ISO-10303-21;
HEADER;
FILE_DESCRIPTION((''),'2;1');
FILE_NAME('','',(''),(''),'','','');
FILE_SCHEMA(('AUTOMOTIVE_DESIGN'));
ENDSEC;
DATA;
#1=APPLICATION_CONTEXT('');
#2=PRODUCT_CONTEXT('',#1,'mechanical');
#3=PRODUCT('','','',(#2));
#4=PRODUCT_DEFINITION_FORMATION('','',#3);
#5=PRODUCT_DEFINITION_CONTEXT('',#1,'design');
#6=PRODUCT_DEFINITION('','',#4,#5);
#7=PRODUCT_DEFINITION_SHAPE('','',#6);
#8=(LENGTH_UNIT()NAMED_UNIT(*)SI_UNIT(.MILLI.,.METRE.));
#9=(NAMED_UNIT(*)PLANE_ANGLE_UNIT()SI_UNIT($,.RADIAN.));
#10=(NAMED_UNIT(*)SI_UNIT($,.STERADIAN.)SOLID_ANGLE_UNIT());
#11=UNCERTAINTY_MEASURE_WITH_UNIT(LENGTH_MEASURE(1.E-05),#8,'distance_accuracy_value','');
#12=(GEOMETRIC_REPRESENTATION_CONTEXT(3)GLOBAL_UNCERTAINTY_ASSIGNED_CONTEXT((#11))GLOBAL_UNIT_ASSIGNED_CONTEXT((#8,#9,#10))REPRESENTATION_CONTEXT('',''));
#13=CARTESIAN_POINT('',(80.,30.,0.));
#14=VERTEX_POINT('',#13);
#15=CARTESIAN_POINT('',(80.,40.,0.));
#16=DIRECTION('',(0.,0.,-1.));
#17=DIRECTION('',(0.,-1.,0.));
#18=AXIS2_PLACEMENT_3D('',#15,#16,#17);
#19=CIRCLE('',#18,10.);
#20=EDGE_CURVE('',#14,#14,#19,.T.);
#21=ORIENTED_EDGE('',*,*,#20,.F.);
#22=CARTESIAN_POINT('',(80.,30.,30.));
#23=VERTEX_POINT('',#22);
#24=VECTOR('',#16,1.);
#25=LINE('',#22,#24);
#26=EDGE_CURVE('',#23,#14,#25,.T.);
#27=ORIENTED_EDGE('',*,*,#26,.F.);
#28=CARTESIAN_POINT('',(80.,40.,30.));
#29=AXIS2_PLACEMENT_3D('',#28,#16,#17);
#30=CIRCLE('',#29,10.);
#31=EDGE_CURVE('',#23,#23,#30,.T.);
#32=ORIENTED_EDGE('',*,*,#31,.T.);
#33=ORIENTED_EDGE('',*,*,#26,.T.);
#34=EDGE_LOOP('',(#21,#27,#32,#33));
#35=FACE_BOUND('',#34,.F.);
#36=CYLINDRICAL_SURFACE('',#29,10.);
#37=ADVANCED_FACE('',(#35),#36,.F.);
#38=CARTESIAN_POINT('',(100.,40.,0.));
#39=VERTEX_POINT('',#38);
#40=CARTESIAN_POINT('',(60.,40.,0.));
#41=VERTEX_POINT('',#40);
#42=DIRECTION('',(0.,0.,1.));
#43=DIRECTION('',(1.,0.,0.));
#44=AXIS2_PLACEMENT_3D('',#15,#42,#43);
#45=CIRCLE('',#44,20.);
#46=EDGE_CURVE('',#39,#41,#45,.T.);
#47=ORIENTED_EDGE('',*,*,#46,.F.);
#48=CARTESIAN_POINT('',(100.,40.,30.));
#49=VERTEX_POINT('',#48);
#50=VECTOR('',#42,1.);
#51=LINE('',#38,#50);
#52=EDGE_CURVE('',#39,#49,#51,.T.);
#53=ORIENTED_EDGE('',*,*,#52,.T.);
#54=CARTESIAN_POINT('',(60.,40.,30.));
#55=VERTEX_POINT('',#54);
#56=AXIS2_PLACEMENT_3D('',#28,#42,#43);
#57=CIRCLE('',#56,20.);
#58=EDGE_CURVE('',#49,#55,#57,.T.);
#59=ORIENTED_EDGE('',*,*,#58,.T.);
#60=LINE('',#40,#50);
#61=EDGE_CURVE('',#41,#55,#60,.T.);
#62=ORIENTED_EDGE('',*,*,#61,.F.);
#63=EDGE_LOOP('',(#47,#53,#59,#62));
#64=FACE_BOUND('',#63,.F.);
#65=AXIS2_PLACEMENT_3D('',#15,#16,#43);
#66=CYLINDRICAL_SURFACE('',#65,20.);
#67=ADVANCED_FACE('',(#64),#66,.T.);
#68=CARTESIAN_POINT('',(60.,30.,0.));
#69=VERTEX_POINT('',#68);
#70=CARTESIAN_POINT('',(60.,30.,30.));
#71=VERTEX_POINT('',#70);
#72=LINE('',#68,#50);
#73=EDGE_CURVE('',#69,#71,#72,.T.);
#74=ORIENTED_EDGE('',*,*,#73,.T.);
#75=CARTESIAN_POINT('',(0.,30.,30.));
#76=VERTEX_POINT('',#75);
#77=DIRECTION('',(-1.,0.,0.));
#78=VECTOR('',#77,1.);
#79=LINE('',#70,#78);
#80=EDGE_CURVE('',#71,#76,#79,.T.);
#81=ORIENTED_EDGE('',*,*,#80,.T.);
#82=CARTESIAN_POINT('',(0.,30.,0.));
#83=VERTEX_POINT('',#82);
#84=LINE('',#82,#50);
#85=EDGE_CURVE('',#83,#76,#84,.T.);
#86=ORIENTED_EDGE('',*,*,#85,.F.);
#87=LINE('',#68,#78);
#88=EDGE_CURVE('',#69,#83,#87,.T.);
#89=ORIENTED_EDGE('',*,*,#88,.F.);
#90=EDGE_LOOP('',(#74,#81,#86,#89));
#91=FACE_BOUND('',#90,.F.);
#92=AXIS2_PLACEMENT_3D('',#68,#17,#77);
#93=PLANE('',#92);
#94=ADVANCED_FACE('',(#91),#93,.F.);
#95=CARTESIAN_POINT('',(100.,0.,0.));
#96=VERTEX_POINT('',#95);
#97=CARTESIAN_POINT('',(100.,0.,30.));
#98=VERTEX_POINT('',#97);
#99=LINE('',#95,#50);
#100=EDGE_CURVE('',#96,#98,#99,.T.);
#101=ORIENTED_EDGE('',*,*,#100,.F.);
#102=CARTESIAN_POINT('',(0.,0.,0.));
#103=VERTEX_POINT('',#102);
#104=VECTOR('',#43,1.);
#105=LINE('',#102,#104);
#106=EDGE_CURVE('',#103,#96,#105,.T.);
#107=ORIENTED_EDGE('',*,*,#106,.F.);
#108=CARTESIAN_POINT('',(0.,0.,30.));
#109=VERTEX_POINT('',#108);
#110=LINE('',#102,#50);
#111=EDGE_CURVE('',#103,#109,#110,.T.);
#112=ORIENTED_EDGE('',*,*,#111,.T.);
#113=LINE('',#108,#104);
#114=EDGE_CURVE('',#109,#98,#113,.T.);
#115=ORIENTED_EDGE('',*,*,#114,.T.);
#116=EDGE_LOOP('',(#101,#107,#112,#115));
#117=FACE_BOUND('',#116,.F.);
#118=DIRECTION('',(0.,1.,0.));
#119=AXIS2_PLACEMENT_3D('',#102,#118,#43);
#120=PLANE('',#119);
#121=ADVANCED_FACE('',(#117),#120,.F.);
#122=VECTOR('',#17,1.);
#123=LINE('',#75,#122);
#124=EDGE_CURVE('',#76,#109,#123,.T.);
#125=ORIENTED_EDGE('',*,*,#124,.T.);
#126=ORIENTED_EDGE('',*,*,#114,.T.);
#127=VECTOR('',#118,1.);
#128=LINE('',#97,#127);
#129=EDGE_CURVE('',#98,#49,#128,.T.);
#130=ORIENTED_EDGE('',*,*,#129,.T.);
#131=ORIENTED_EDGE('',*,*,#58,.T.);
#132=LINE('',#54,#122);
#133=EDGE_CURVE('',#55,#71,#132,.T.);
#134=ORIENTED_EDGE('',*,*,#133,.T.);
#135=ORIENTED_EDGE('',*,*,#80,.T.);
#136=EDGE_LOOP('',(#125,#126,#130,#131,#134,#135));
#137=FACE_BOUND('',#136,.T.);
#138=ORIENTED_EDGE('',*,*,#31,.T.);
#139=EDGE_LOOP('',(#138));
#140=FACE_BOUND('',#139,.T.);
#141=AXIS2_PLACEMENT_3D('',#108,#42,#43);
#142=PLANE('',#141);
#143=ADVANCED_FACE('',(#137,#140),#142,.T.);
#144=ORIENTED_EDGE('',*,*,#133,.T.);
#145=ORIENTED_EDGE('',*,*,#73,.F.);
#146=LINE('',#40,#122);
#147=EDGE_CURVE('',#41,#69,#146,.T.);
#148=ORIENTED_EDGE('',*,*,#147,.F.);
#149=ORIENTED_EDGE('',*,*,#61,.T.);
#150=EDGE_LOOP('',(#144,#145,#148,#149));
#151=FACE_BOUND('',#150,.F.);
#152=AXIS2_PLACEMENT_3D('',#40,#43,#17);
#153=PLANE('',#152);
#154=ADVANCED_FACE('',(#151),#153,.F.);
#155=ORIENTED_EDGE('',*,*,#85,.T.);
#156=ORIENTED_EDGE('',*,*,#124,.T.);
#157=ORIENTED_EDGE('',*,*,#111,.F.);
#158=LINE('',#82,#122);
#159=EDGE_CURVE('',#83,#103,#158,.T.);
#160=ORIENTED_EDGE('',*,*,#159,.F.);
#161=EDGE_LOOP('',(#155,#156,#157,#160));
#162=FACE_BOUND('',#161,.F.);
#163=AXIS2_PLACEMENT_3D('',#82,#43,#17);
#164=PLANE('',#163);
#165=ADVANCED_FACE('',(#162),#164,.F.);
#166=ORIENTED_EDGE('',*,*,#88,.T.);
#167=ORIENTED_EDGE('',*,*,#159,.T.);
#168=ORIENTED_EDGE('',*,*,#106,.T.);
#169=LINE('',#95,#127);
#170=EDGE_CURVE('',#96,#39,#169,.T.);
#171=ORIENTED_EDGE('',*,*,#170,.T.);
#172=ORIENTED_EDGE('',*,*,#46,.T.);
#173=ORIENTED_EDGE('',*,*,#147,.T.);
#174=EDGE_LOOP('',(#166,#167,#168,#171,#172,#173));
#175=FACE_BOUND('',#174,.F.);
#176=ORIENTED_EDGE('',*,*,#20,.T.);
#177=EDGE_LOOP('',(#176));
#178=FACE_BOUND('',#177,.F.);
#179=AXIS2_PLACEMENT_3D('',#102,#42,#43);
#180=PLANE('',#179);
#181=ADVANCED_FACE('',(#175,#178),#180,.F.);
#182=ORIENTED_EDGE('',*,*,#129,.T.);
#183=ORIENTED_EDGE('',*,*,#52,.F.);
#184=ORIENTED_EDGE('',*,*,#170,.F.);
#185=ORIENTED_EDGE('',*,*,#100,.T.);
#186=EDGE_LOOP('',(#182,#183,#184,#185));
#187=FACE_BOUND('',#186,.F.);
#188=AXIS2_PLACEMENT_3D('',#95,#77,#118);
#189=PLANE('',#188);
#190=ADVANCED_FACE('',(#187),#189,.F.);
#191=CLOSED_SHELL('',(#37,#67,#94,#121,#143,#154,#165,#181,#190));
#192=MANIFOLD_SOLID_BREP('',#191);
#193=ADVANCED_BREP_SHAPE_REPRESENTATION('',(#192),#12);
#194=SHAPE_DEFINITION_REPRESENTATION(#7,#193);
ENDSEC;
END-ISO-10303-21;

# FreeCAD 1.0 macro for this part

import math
import FreeCAD as App
import Part
import Sketcher
Q = App.Units.Quantity

doc = App.newDocument("Part")
body = doc.addObject("PartDesign::Body", "Body")

# Sketch on XY plane
sketch1 = doc.addObject("Sketcher::SketchObject", "Sketch")
body.addObject(sketch1)
sketch1.AttachmentSupport = (doc.XY_Plane, [""])
sketch1.MapMode = "FlatFace"
sketch1.addGeometry(Part.LineSegment(App.Vector(0, 30, 0), App.Vector(0, 0, 0)), False)
sketch1.addGeometry(Part.LineSegment(App.Vector(0, 0, 0), App.Vector(100, 0, 0)), False)
sketch1.addGeometry(Part.LineSegment(App.Vector(100, 0, 0), App.Vector(100, 40, 0)), False)
sketch1.addGeometry(Part.ArcOfCircle(Part.Circle(App.Vector(80, 40, 0), App.Vector(0, 0, 1), 20), math.radians(0), math.radians(180)), False)
sketch1.addGeometry(Part.LineSegment(App.Vector(60, 40, 0), App.Vector(60, 30, 0)), False)
sketch1.addGeometry(Part.LineSegment(App.Vector(60, 30, 0), App.Vector(0, 30, 0)), False)
sketch1.addConstraint(Sketcher.Constraint("Coincident", 0, 2, 1, 1))
sketch1.addConstraint(Sketcher.Constraint("Coincident", 1, 2, 2, 1))
sketch1.addConstraint(Sketcher.Constraint("Tangent", 2, 2, 3, 1))
sketch1.addConstraint(Sketcher.Constraint("Tangent", 3, 2, 4, 1))
sketch1.addConstraint(Sketcher.Constraint("Coincident", 4, 2, 5, 1))
sketch1.addConstraint(Sketcher.Constraint("Coincident", 5, 2, 0, 1))
sketch1.addConstraint(Sketcher.Constraint("Vertical", 0))
sketch1.addConstraint(Sketcher.Constraint("Horizontal", 1))
sketch1.addConstraint(Sketcher.Constraint("Vertical", 2))
sketch1.addConstraint(Sketcher.Constraint("Vertical", 4))
sketch1.addConstraint(Sketcher.Constraint("Horizontal", 5))
sketch1.addConstraint(Sketcher.Constraint("Coincident", 0, 2, -1, 1))
sketch1.addConstraint(Sketcher.Constraint("Radius", 3, Q("0.7874 in")))
sketch1.addConstraint(Sketcher.Constraint("DistanceX", 1, 1, 1, 2, Q("3.937 in")))
sketch1.addConstraint(Sketcher.Constraint("DistanceY", 0, 2, 0, 1, Q("1.1811 in")))
sketch1.addConstraint(Sketcher.Constraint("DistanceY", 2, 1, 2, 2, Q("1.5748 in")))
pad1 = doc.addObject("PartDesign::Pad", "Pad")
body.addObject(pad1)
pad1.Profile = sketch1
pad1.Length = Q("1.1811024 in")

# Sketch on XY plane
sketch2 = doc.addObject("Sketcher::SketchObject", "Sketch001")
body.addObject(sketch2)
sketch2.AttachmentSupport = (doc.XY_Plane, [""])
sketch2.MapMode = "FlatFace"
sketch2.AttachmentOffset = App.Placement(App.Vector(0, 0, 1.1811024 * 25.4), App.Rotation())
sketch2.addGeometry(Part.Circle(App.Vector(80, 40, 0), App.Vector(0, 0, 1), 10), False)
sketch2.addConstraint(Sketcher.Constraint("Diameter", 0, Q("0.7874 in")))
sketch2.addConstraint(Sketcher.Constraint("DistanceX", -1, 1, 0, 3, Q("3.1496 in")))
sketch2.addConstraint(Sketcher.Constraint("DistanceY", -1, 1, 0, 3, Q("1.5748 in")))
doc.recompute()
hole = doc.addObject("PartDesign::Hole", "Hole")
body.addObject(hole)
hole.Profile = sketch2
hole.ThreadType = "None"
hole.Diameter = Q("0.7874016 in")
hole.DepthType = "ThroughAll"

doc.recompute()
